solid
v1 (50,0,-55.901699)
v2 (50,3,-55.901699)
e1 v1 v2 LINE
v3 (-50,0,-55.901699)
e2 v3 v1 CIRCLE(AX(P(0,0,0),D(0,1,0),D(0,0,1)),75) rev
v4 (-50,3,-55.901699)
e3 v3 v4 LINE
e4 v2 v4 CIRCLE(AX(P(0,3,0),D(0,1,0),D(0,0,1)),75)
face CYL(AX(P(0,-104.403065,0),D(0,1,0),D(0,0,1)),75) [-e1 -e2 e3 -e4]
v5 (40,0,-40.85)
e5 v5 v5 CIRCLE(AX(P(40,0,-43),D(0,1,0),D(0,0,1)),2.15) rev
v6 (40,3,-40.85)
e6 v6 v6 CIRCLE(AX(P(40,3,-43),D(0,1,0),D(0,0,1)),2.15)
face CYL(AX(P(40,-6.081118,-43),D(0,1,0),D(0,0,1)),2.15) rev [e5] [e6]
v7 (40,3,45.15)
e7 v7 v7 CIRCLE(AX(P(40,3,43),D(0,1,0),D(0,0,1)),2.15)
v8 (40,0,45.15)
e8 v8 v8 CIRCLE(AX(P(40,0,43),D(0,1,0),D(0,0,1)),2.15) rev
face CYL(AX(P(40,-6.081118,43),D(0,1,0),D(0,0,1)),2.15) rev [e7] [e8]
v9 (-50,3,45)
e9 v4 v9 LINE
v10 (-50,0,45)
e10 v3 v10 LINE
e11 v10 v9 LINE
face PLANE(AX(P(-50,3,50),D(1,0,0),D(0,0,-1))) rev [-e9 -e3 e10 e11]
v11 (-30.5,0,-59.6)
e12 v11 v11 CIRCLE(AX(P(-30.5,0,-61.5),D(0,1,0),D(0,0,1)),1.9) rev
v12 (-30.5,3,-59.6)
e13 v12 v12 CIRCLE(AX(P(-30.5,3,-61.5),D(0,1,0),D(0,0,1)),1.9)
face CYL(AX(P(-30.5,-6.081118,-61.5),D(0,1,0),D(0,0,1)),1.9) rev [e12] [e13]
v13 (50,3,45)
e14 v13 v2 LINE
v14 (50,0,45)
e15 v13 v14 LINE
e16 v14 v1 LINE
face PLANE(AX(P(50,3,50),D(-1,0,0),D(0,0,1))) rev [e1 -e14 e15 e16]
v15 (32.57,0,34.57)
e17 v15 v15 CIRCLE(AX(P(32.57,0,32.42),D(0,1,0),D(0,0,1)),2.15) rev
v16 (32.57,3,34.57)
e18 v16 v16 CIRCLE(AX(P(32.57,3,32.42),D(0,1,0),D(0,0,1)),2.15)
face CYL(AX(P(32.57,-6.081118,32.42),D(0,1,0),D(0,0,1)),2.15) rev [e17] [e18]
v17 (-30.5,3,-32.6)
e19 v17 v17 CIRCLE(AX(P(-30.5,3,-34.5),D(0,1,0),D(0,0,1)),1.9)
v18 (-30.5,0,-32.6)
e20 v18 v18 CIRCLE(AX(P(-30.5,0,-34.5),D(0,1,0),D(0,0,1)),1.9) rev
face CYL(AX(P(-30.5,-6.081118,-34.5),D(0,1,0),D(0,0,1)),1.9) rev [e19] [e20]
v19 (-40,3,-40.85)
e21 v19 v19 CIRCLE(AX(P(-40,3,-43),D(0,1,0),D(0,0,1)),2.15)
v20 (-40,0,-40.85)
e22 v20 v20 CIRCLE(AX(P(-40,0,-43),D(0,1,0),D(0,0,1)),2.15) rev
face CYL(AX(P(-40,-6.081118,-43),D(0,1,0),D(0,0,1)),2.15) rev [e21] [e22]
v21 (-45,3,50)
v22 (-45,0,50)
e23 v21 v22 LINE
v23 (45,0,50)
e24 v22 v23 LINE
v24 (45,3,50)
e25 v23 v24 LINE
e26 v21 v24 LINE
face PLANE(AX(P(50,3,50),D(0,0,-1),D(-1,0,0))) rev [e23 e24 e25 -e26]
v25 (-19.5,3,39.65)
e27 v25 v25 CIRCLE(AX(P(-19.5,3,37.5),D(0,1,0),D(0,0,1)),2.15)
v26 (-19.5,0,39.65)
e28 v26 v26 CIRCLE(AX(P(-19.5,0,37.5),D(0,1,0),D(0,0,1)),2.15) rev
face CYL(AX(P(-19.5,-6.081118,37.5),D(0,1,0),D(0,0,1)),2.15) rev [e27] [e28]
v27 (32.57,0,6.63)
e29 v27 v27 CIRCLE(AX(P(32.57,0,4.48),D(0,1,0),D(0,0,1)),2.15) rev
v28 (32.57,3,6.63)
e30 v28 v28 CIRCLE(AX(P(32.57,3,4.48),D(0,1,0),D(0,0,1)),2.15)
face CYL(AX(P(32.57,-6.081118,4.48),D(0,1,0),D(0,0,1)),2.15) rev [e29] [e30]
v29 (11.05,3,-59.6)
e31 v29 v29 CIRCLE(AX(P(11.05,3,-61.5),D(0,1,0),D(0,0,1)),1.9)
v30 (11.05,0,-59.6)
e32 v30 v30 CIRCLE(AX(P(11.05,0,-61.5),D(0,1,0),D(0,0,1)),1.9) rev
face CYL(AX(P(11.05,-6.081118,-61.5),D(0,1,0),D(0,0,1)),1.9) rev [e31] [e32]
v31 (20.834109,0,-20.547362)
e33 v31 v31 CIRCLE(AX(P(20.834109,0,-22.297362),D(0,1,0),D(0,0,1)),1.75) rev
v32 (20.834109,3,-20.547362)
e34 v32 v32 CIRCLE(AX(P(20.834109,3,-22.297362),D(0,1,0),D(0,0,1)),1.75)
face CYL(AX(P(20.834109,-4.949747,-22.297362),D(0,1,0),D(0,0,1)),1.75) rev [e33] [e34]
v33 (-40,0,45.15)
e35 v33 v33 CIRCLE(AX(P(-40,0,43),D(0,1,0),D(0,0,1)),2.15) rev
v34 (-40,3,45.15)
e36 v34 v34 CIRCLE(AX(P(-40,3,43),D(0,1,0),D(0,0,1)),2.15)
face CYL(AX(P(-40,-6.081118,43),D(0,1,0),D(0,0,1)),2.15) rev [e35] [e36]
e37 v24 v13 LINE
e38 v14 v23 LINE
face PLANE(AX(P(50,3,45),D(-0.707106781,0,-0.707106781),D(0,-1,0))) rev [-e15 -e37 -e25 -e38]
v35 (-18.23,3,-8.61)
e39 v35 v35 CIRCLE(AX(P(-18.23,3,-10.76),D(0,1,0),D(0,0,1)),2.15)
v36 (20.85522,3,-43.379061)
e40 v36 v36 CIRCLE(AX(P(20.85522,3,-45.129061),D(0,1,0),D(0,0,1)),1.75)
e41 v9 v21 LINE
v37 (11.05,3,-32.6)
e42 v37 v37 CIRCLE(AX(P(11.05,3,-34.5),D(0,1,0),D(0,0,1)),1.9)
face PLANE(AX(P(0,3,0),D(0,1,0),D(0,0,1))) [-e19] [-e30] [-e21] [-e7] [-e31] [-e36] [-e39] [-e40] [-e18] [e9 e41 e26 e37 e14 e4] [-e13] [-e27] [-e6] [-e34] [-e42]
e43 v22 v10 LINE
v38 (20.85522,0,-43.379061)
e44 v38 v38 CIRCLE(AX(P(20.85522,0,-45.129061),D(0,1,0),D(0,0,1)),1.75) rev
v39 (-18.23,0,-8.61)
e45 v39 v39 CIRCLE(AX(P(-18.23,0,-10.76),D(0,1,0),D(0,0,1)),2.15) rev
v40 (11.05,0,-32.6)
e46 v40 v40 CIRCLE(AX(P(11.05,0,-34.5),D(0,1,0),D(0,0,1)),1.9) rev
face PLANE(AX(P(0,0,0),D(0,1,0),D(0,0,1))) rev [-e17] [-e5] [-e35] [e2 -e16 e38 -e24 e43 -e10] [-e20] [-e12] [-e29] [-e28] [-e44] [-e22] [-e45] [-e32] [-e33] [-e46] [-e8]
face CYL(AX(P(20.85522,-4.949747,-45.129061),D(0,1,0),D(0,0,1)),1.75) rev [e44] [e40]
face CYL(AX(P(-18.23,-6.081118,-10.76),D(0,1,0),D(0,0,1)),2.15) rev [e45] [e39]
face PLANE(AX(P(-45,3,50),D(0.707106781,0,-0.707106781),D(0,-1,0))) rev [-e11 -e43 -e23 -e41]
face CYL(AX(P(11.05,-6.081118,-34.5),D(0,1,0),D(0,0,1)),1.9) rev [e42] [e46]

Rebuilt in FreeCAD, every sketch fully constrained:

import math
import FreeCAD as App
import Part
import Sketcher

V = App.Vector


def edges_at(feature, points):
    """Names of the edges that pass closest to the given points."""
    edges = feature.Shape.Edges
    near = lambda p: min(range(len(edges)), key=lambda i: edges[i].distToShape(Part.Vertex(*p))[0])
    return sorted({f"Edge{near(p) + 1}" for p in points})

doc = App.newDocument("Part")
body = doc.addObject("PartDesign::Body", "Body")

# Sketch on XZ plane
sketch1 = body.newObject("Sketcher::SketchObject", "Sketch")
sketch1.AttachmentSupport = (doc.getObject("XZ_Plane"), [""])
sketch1.MapMode = "FlatFace"
sketch1.addGeometry([
    Part.LineSegment(V(-50, -50, 0), V(-50, 50, 0)),
    Part.LineSegment(V(-50, 50, 0), V(50, 50, 0)),
    Part.LineSegment(V(50, 50, 0), V(50, -50, 0)),
    Part.LineSegment(V(50, -50, 0), V(-50, -50, 0)),
], False)
sketch1.addConstraint([
    Sketcher.Constraint("Coincident", 0, 2, 1, 1),
    Sketcher.Constraint("Coincident", 1, 2, 2, 1),
    Sketcher.Constraint("Coincident", 2, 2, 3, 1),
    Sketcher.Constraint("Coincident", 3, 2, 0, 1),
    Sketcher.Constraint("Vertical", 0),
    Sketcher.Constraint("Horizontal", 1),
    Sketcher.Constraint("Vertical", 2),
    Sketcher.Constraint("Horizontal", 3),
    Sketcher.Constraint("Symmetric", 0, 2, 2, 2, -1, 1),
    Sketcher.Constraint("Equal", 3, 0),
    Sketcher.Constraint("DistanceX", 1, 1, 1, 2, 100.0),
])
pad1 = body.newObject("PartDesign::Pad", "Pad")
pad1.Profile = sketch1
pad1.Length = 3
pad1.Reversed = True

# Sketch on XZ plane
sketch2 = body.newObject("Sketcher::SketchObject", "Sketch001")
sketch2.AttachmentSupport = (doc.getObject("XZ_Plane"), [""])
sketch2.MapMode = "FlatFace"
sketch2.AttachmentOffset = App.Placement(V(0, 0, -3), App.Rotation())
sketch2.addGeometry(Part.Circle(V(-40, -43, 0), V(0, 0, 1), 1.8), False)
sketch2.addConstraint([
    Sketcher.Constraint("Diameter", 0, 3.5),
    Sketcher.Constraint("DistanceX", 0, 3, -1, 1, 40.0),
    Sketcher.Constraint("DistanceY", 0, 3, -1, 1, 43.0),
])
pocket1 = body.newObject("PartDesign::Pocket", "Pocket")
pocket1.Profile = sketch2
pocket1.Type = "ThroughAll"
pocket1.Reversed = True
doc.recompute()

mirrored = body.newObject("PartDesign::Mirrored", "Mirrored")
mirrored.Originals = [pocket1]
mirrored.MirrorPlane = (doc.getObject("YZ_Plane"), [""])
body.Tip = mirrored
doc.recompute()

mirrored2 = body.newObject("PartDesign::Mirrored", "Mirrored001")
mirrored2.Originals = [pocket1]
mirrored2.MirrorPlane = (doc.getObject("XY_Plane"), [""])
body.Tip = mirrored2

# Sketch on XZ plane
sketch3 = body.newObject("Sketcher::SketchObject", "Sketch002")
sketch3.AttachmentSupport = (doc.getObject("XZ_Plane"), [""])
sketch3.MapMode = "FlatFace"
sketch3.AttachmentOffset = App.Placement(V(0, 0, -3), App.Rotation())
sketch3.addGeometry(Part.Circle(V(40, 43, 0), V(0, 0, 1), 1.8), False)
sketch3.addConstraint([
    Sketcher.Constraint("Diameter", 0, 3.5),
    Sketcher.Constraint("DistanceX", -1, 1, 0, 3, 40.0),
    Sketcher.Constraint("DistanceY", -1, 1, 0, 3, 43.0),
])
pocket2 = body.newObject("PartDesign::Pocket", "Pocket001")
pocket2.Profile = sketch3
pocket2.Type = "ThroughAll"
pocket2.Reversed = True
doc.recompute()

chamfer = body.newObject("PartDesign::Chamfer", "Chamfer")
chamfer.Base = (pocket2, edges_at(pocket2, [
    (-50, 1.5, -50),
    (50, 1.5, -50),
    (50, 1.5, 50),
    (-50, 1.5, 50),
]))
chamfer.Size = 5

# Sketch on XZ plane
sketch4 = body.newObject("Sketcher::SketchObject", "Sketch003")
sketch4.AttachmentSupport = (doc.getObject("XZ_Plane"), [""])
sketch4.MapMode = "FlatFace"
sketch4.AttachmentOffset = App.Placement(V(0, 0, -3), App.Rotation())
sketch4.addGeometry([
    Part.LineSegment(V(45, -50, 0), V(50, -45, 0)),  # 0
    Part.LineSegment(V(50, -45, 0), V(50, -55.9, 0)),  # 1
    Part.ArcOfCircle(Part.Circle(V(0, 0, 0), V(0, 0, 1), 75), math.radians(-132), math.radians(-48)),  # 2
    Part.LineSegment(V(-50, -55.9, 0), V(-50, -45, 0)),  # 3
    Part.LineSegment(V(-50, -45, 0), V(-45, -50, 0)),  # 4
    Part.LineSegment(V(-45, -50, 0), V(45, -50, 0)),  # 5
    Part.Circle(V(-30.5, -61.5, 0), V(0, 0, 1), 1.8),  # 6
], False)
sketch4.addConstraint([
    Sketcher.Constraint("Coincident", 0, 2, 1, 1),
    Sketcher.Constraint("Coincident", 1, 2, 2, 2),
    Sketcher.Constraint("Coincident", 2, 1, 3, 1),
    Sketcher.Constraint("Coincident", 3, 2, 4, 1),
    Sketcher.Constraint("Coincident", 4, 2, 5, 1),
    Sketcher.Constraint("Coincident", 5, 2, 0, 1),
    Sketcher.Constraint("Vertical", 1),
    Sketcher.Constraint("Vertical", 3),
    Sketcher.Constraint("Horizontal", 5),
    Sketcher.Constraint("Coincident", 2, 3, -1, 1),
    Sketcher.Constraint("Symmetric", 0, 2, 3, 2, -2),
    Sketcher.Constraint("Perpendicular", 0, 4),
    Sketcher.Constraint("Equal", 0, 4),
    Sketcher.Constraint("Radius", 2, 75.0),
    Sketcher.Constraint("Diameter", 6, 3.5),
    Sketcher.Constraint("DistanceX", 5, 1, 5, 2, 90.0),
    Sketcher.Constraint("DistanceX", -1, 1, 0, 2, 50.0),
    Sketcher.Constraint("DistanceY", 0, 2, -1, 1, 45.0),
    Sketcher.Constraint("DistanceX", 6, 3, -1, 1, 30.5),
    Sketcher.Constraint("DistanceY", 6, 3, -1, 1, 61.5),
])
pad2 = body.newObject("PartDesign::Pad", "Pad001")
pad2.Profile = sketch4
pad2.Length = 3

# Sketch on XZ plane
sketch5 = body.newObject("Sketcher::SketchObject", "Sketch004")
sketch5.AttachmentSupport = (doc.getObject("XZ_Plane"), [""])
sketch5.MapMode = "FlatFace"
sketch5.AttachmentOffset = App.Placement(V(0, 0, -3), App.Rotation())
sketch5.addGeometry(Part.Circle(V(-18.2, -10.8, 0), V(0, 0, 1), 1.8), False)
sketch5.addConstraint([
    Sketcher.Constraint("Diameter", 0, 3.5),
    Sketcher.Constraint("DistanceX", 0, 3, -1, 1, 18.23),
    Sketcher.Constraint("DistanceY", 0, 3, -1, 1, 10.76),
])
pocket3 = body.newObject("PartDesign::Pocket", "Pocket002")
pocket3.Profile = sketch5
pocket3.Type = "UpToFirst"
pocket3.Reversed = True

# Sketch on XZ plane
sketch6 = body.newObject("Sketcher::SketchObject", "Sketch005")
sketch6.AttachmentSupport = (doc.getObject("XZ_Plane"), [""])
sketch6.MapMode = "FlatFace"
sketch6.AttachmentOffset = App.Placement(V(0, 0, -3), App.Rotation())
sketch6.addGeometry(Part.Circle(V(-19.5, 37.5, 0), V(0, 0, 1), 1.8), False)
sketch6.addConstraint([
    Sketcher.Constraint("Diameter", 0, 3.5),
    Sketcher.Constraint("DistanceX", 0, 3, -1, 1, 19.5),
    Sketcher.Constraint("DistanceY", -1, 1, 0, 3, 37.5),
])
pocket4 = body.newObject("PartDesign::Pocket", "Pocket003")
pocket4.Profile = sketch6
pocket4.Type = "UpToFirst"
pocket4.Reversed = True

# Sketch on XZ plane
sketch7 = body.newObject("Sketcher::SketchObject", "Sketch006")
sketch7.AttachmentSupport = (doc.getObject("XZ_Plane"), [""])
sketch7.MapMode = "FlatFace"
sketch7.AttachmentOffset = App.Placement(V(0, 0, -3), App.Rotation())
sketch7.addGeometry(Part.Circle(V(32.6, 32.4, 0), V(0, 0, 1), 1.8), False)
sketch7.addConstraint([
    Sketcher.Constraint("Diameter", 0, 3.5),
    Sketcher.Constraint("DistanceX", -1, 1, 0, 3, 32.57),
    Sketcher.Constraint("DistanceY", -1, 1, 0, 3, 32.42),
])
pocket5 = body.newObject("PartDesign::Pocket", "Pocket004")
pocket5.Profile = sketch7
pocket5.Type = "UpToFirst"
pocket5.Reversed = True

# Sketch on XZ plane
sketch8 = body.newObject("Sketcher::SketchObject", "Sketch007")
sketch8.AttachmentSupport = (doc.getObject("XZ_Plane"), [""])
sketch8.MapMode = "FlatFace"
sketch8.AttachmentOffset = App.Placement(V(0, 0, -3), App.Rotation())
sketch8.addGeometry(Part.Circle(V(32.6, 4.5, 0), V(0, 0, 1), 1.8), False)
sketch8.addConstraint([
    Sketcher.Constraint("Diameter", 0, 3.5),
    Sketcher.Constraint("DistanceX", -1, 1, 0, 3, 32.57),
    Sketcher.Constraint("DistanceY", -1, 1, 0, 3, 4.48),
])
pocket6 = body.newObject("PartDesign::Pocket", "Pocket005")
pocket6.Profile = sketch8
pocket6.Type = "UpToFirst"
pocket6.Reversed = True

# Sketch on XZ plane
sketch9 = body.newObject("Sketcher::SketchObject", "Sketch008")
sketch9.AttachmentSupport = (doc.getObject("XZ_Plane"), [""])
sketch9.MapMode = "FlatFace"
sketch9.AttachmentOffset = App.Placement(V(0, 0, -3), App.Rotation())
sketch9.addGeometry([
    Part.Circle(V(-40, -43, 0), V(0, 0, 1), 2.1),  # 0
    Part.Circle(V(-30.5, -61.5, 0), V(0, 0, 1), 1.9),  # 1
    Part.Circle(V(-30.5, -34.5, 0), V(0, 0, 1), 1.9),  # 2
    Part.Circle(V(-18.2, -10.8, 0), V(0, 0, 1), 2.1),  # 3
    Part.Circle(V(-19.5, 37.5, 0), V(0, 0, 1), 2.1),  # 4
    Part.Circle(V(-40, 43, 0), V(0, 0, 1), 2.1),  # 5
    Part.Circle(V(40, 43, 0), V(0, 0, 1), 2.1),  # 6
    Part.Circle(V(32.6, 32.4, 0), V(0, 0, 1), 2.1),  # 7
    Part.Circle(V(32.6, 4.5, 0), V(0, 0, 1), 2.1),  # 8
    Part.Circle(V(40, -43, 0), V(0, 0, 1), 2.1),  # 9
    Part.Circle(V(11.1, -34.5, 0), V(0, 0, 1), 1.9),  # 10
    Part.Circle(V(11.1, -61.5, 0), V(0, 0, 1), 1.9),  # 11
], False)
sketch9.addConstraint([
    Sketcher.Constraint("Equal", 1, 2),
    Sketcher.Constraint("Equal", 0, 3),
    Sketcher.Constraint("Equal", 3, 4),
    Sketcher.Constraint("Equal", 4, 5),
    Sketcher.Constraint("Equal", 5, 6),
    Sketcher.Constraint("Equal", 6, 7),
    Sketcher.Constraint("Equal", 7, 8),
    Sketcher.Constraint("Equal", 8, 9),
    Sketcher.Constraint("Equal", 2, 10),
    Sketcher.Constraint("Equal", 10, 11),
    Sketcher.Constraint("Symmetric", 0, 3, 6, 3, -1, 1),
    Sketcher.Constraint("Symmetric", 5, 3, 9, 3, -1, 1),
    Sketcher.Constraint("Symmetric", 5, 3, 6, 3, -2),
    Sketcher.Constraint("Horizontal", 2, 3, 10, 3),
    Sketcher.Constraint("Horizontal", 1, 3, 11, 3),
    Sketcher.Constraint("Vertical", 1, 3, 2, 3),
    Sketcher.Constraint("Vertical", 7, 3, 8, 3),
    Sketcher.Constraint("Vertical", 10, 3, 11, 3),
    Sketcher.Constraint("Diameter", 0, 4.3),
    Sketcher.Constraint("Diameter", 1, 3.8),
    Sketcher.Constraint("DistanceX", 0, 3, -1, 1, 40.0),
    Sketcher.Constraint("DistanceY", 0, 3, -1, 1, 43.0),
    Sketcher.Constraint("DistanceY", 1, 3, 2, 3, 27.0),
    Sketcher.Constraint("DistanceX", 2, 3, 4, 3, 11.0),
    Sketcher.Constraint("DistanceY", 2, 3, 4, 3, 72.0),
    Sketcher.Constraint("DistanceX", 1, 3, -1, 1, 30.5),
    Sketcher.Constraint("DistanceY", 1, 3, -1, 1, 61.5),
    Sketcher.Constraint("DistanceX", 3, 3, 7, 3, 50.8),
    Sketcher.Constraint("DistanceX", 3, 3, -1, 1, 18.23),
    Sketcher.Constraint("DistanceY", 3, 3, -1, 1, 10.76),
    Sketcher.Constraint("DistanceY", -1, 1, 7, 3, 32.42),
    Sketcher.Constraint("DistanceY", -1, 1, 8, 3, 4.48),
    Sketcher.Constraint("DistanceX", -1, 1, 10, 3, 11.05),
])
pocket7 = body.newObject("PartDesign::Pocket", "Pocket006")
pocket7.Profile = sketch9
pocket7.Length = 3
pocket7.Reversed = True

# Sketch on XZ plane
sketch10 = body.newObject("Sketcher::SketchObject", "Sketch009")
sketch10.AttachmentSupport = (doc.getObject("XZ_Plane"), [""])
sketch10.MapMode = "FlatFace"
sketch10.AttachmentOffset = App.Placement(V(0, 0, -3), App.Rotation())
sketch10.addGeometry([
    Part.Circle(V(20.9, -45.1, 0), V(0, 0, 1), 1.8),
    Part.Circle(V(20.8, -22.3, 0), V(0, 0, 1), 1.8),
], False)
sketch10.addConstraint([
    Sketcher.Constraint("Equal", 0, 1),
    Sketcher.Constraint("Diameter", 0, 3.5),
    Sketcher.Constraint("DistanceY", 0, 3, 1, 3, 22.831699),
    Sketcher.Constraint("DistanceX", -1, 1, 0, 3, 20.85522),
    Sketcher.Constraint("DistanceY", 0, 3, -1, 1, 45.129061),
    Sketcher.Constraint("DistanceX", -1, 1, 1, 3, 20.834109),
])
pocket8 = body.newObject("PartDesign::Pocket", "Pocket007")
pocket8.Profile = sketch10
pocket8.Length = 3
pocket8.Reversed = True

doc.recompute()
